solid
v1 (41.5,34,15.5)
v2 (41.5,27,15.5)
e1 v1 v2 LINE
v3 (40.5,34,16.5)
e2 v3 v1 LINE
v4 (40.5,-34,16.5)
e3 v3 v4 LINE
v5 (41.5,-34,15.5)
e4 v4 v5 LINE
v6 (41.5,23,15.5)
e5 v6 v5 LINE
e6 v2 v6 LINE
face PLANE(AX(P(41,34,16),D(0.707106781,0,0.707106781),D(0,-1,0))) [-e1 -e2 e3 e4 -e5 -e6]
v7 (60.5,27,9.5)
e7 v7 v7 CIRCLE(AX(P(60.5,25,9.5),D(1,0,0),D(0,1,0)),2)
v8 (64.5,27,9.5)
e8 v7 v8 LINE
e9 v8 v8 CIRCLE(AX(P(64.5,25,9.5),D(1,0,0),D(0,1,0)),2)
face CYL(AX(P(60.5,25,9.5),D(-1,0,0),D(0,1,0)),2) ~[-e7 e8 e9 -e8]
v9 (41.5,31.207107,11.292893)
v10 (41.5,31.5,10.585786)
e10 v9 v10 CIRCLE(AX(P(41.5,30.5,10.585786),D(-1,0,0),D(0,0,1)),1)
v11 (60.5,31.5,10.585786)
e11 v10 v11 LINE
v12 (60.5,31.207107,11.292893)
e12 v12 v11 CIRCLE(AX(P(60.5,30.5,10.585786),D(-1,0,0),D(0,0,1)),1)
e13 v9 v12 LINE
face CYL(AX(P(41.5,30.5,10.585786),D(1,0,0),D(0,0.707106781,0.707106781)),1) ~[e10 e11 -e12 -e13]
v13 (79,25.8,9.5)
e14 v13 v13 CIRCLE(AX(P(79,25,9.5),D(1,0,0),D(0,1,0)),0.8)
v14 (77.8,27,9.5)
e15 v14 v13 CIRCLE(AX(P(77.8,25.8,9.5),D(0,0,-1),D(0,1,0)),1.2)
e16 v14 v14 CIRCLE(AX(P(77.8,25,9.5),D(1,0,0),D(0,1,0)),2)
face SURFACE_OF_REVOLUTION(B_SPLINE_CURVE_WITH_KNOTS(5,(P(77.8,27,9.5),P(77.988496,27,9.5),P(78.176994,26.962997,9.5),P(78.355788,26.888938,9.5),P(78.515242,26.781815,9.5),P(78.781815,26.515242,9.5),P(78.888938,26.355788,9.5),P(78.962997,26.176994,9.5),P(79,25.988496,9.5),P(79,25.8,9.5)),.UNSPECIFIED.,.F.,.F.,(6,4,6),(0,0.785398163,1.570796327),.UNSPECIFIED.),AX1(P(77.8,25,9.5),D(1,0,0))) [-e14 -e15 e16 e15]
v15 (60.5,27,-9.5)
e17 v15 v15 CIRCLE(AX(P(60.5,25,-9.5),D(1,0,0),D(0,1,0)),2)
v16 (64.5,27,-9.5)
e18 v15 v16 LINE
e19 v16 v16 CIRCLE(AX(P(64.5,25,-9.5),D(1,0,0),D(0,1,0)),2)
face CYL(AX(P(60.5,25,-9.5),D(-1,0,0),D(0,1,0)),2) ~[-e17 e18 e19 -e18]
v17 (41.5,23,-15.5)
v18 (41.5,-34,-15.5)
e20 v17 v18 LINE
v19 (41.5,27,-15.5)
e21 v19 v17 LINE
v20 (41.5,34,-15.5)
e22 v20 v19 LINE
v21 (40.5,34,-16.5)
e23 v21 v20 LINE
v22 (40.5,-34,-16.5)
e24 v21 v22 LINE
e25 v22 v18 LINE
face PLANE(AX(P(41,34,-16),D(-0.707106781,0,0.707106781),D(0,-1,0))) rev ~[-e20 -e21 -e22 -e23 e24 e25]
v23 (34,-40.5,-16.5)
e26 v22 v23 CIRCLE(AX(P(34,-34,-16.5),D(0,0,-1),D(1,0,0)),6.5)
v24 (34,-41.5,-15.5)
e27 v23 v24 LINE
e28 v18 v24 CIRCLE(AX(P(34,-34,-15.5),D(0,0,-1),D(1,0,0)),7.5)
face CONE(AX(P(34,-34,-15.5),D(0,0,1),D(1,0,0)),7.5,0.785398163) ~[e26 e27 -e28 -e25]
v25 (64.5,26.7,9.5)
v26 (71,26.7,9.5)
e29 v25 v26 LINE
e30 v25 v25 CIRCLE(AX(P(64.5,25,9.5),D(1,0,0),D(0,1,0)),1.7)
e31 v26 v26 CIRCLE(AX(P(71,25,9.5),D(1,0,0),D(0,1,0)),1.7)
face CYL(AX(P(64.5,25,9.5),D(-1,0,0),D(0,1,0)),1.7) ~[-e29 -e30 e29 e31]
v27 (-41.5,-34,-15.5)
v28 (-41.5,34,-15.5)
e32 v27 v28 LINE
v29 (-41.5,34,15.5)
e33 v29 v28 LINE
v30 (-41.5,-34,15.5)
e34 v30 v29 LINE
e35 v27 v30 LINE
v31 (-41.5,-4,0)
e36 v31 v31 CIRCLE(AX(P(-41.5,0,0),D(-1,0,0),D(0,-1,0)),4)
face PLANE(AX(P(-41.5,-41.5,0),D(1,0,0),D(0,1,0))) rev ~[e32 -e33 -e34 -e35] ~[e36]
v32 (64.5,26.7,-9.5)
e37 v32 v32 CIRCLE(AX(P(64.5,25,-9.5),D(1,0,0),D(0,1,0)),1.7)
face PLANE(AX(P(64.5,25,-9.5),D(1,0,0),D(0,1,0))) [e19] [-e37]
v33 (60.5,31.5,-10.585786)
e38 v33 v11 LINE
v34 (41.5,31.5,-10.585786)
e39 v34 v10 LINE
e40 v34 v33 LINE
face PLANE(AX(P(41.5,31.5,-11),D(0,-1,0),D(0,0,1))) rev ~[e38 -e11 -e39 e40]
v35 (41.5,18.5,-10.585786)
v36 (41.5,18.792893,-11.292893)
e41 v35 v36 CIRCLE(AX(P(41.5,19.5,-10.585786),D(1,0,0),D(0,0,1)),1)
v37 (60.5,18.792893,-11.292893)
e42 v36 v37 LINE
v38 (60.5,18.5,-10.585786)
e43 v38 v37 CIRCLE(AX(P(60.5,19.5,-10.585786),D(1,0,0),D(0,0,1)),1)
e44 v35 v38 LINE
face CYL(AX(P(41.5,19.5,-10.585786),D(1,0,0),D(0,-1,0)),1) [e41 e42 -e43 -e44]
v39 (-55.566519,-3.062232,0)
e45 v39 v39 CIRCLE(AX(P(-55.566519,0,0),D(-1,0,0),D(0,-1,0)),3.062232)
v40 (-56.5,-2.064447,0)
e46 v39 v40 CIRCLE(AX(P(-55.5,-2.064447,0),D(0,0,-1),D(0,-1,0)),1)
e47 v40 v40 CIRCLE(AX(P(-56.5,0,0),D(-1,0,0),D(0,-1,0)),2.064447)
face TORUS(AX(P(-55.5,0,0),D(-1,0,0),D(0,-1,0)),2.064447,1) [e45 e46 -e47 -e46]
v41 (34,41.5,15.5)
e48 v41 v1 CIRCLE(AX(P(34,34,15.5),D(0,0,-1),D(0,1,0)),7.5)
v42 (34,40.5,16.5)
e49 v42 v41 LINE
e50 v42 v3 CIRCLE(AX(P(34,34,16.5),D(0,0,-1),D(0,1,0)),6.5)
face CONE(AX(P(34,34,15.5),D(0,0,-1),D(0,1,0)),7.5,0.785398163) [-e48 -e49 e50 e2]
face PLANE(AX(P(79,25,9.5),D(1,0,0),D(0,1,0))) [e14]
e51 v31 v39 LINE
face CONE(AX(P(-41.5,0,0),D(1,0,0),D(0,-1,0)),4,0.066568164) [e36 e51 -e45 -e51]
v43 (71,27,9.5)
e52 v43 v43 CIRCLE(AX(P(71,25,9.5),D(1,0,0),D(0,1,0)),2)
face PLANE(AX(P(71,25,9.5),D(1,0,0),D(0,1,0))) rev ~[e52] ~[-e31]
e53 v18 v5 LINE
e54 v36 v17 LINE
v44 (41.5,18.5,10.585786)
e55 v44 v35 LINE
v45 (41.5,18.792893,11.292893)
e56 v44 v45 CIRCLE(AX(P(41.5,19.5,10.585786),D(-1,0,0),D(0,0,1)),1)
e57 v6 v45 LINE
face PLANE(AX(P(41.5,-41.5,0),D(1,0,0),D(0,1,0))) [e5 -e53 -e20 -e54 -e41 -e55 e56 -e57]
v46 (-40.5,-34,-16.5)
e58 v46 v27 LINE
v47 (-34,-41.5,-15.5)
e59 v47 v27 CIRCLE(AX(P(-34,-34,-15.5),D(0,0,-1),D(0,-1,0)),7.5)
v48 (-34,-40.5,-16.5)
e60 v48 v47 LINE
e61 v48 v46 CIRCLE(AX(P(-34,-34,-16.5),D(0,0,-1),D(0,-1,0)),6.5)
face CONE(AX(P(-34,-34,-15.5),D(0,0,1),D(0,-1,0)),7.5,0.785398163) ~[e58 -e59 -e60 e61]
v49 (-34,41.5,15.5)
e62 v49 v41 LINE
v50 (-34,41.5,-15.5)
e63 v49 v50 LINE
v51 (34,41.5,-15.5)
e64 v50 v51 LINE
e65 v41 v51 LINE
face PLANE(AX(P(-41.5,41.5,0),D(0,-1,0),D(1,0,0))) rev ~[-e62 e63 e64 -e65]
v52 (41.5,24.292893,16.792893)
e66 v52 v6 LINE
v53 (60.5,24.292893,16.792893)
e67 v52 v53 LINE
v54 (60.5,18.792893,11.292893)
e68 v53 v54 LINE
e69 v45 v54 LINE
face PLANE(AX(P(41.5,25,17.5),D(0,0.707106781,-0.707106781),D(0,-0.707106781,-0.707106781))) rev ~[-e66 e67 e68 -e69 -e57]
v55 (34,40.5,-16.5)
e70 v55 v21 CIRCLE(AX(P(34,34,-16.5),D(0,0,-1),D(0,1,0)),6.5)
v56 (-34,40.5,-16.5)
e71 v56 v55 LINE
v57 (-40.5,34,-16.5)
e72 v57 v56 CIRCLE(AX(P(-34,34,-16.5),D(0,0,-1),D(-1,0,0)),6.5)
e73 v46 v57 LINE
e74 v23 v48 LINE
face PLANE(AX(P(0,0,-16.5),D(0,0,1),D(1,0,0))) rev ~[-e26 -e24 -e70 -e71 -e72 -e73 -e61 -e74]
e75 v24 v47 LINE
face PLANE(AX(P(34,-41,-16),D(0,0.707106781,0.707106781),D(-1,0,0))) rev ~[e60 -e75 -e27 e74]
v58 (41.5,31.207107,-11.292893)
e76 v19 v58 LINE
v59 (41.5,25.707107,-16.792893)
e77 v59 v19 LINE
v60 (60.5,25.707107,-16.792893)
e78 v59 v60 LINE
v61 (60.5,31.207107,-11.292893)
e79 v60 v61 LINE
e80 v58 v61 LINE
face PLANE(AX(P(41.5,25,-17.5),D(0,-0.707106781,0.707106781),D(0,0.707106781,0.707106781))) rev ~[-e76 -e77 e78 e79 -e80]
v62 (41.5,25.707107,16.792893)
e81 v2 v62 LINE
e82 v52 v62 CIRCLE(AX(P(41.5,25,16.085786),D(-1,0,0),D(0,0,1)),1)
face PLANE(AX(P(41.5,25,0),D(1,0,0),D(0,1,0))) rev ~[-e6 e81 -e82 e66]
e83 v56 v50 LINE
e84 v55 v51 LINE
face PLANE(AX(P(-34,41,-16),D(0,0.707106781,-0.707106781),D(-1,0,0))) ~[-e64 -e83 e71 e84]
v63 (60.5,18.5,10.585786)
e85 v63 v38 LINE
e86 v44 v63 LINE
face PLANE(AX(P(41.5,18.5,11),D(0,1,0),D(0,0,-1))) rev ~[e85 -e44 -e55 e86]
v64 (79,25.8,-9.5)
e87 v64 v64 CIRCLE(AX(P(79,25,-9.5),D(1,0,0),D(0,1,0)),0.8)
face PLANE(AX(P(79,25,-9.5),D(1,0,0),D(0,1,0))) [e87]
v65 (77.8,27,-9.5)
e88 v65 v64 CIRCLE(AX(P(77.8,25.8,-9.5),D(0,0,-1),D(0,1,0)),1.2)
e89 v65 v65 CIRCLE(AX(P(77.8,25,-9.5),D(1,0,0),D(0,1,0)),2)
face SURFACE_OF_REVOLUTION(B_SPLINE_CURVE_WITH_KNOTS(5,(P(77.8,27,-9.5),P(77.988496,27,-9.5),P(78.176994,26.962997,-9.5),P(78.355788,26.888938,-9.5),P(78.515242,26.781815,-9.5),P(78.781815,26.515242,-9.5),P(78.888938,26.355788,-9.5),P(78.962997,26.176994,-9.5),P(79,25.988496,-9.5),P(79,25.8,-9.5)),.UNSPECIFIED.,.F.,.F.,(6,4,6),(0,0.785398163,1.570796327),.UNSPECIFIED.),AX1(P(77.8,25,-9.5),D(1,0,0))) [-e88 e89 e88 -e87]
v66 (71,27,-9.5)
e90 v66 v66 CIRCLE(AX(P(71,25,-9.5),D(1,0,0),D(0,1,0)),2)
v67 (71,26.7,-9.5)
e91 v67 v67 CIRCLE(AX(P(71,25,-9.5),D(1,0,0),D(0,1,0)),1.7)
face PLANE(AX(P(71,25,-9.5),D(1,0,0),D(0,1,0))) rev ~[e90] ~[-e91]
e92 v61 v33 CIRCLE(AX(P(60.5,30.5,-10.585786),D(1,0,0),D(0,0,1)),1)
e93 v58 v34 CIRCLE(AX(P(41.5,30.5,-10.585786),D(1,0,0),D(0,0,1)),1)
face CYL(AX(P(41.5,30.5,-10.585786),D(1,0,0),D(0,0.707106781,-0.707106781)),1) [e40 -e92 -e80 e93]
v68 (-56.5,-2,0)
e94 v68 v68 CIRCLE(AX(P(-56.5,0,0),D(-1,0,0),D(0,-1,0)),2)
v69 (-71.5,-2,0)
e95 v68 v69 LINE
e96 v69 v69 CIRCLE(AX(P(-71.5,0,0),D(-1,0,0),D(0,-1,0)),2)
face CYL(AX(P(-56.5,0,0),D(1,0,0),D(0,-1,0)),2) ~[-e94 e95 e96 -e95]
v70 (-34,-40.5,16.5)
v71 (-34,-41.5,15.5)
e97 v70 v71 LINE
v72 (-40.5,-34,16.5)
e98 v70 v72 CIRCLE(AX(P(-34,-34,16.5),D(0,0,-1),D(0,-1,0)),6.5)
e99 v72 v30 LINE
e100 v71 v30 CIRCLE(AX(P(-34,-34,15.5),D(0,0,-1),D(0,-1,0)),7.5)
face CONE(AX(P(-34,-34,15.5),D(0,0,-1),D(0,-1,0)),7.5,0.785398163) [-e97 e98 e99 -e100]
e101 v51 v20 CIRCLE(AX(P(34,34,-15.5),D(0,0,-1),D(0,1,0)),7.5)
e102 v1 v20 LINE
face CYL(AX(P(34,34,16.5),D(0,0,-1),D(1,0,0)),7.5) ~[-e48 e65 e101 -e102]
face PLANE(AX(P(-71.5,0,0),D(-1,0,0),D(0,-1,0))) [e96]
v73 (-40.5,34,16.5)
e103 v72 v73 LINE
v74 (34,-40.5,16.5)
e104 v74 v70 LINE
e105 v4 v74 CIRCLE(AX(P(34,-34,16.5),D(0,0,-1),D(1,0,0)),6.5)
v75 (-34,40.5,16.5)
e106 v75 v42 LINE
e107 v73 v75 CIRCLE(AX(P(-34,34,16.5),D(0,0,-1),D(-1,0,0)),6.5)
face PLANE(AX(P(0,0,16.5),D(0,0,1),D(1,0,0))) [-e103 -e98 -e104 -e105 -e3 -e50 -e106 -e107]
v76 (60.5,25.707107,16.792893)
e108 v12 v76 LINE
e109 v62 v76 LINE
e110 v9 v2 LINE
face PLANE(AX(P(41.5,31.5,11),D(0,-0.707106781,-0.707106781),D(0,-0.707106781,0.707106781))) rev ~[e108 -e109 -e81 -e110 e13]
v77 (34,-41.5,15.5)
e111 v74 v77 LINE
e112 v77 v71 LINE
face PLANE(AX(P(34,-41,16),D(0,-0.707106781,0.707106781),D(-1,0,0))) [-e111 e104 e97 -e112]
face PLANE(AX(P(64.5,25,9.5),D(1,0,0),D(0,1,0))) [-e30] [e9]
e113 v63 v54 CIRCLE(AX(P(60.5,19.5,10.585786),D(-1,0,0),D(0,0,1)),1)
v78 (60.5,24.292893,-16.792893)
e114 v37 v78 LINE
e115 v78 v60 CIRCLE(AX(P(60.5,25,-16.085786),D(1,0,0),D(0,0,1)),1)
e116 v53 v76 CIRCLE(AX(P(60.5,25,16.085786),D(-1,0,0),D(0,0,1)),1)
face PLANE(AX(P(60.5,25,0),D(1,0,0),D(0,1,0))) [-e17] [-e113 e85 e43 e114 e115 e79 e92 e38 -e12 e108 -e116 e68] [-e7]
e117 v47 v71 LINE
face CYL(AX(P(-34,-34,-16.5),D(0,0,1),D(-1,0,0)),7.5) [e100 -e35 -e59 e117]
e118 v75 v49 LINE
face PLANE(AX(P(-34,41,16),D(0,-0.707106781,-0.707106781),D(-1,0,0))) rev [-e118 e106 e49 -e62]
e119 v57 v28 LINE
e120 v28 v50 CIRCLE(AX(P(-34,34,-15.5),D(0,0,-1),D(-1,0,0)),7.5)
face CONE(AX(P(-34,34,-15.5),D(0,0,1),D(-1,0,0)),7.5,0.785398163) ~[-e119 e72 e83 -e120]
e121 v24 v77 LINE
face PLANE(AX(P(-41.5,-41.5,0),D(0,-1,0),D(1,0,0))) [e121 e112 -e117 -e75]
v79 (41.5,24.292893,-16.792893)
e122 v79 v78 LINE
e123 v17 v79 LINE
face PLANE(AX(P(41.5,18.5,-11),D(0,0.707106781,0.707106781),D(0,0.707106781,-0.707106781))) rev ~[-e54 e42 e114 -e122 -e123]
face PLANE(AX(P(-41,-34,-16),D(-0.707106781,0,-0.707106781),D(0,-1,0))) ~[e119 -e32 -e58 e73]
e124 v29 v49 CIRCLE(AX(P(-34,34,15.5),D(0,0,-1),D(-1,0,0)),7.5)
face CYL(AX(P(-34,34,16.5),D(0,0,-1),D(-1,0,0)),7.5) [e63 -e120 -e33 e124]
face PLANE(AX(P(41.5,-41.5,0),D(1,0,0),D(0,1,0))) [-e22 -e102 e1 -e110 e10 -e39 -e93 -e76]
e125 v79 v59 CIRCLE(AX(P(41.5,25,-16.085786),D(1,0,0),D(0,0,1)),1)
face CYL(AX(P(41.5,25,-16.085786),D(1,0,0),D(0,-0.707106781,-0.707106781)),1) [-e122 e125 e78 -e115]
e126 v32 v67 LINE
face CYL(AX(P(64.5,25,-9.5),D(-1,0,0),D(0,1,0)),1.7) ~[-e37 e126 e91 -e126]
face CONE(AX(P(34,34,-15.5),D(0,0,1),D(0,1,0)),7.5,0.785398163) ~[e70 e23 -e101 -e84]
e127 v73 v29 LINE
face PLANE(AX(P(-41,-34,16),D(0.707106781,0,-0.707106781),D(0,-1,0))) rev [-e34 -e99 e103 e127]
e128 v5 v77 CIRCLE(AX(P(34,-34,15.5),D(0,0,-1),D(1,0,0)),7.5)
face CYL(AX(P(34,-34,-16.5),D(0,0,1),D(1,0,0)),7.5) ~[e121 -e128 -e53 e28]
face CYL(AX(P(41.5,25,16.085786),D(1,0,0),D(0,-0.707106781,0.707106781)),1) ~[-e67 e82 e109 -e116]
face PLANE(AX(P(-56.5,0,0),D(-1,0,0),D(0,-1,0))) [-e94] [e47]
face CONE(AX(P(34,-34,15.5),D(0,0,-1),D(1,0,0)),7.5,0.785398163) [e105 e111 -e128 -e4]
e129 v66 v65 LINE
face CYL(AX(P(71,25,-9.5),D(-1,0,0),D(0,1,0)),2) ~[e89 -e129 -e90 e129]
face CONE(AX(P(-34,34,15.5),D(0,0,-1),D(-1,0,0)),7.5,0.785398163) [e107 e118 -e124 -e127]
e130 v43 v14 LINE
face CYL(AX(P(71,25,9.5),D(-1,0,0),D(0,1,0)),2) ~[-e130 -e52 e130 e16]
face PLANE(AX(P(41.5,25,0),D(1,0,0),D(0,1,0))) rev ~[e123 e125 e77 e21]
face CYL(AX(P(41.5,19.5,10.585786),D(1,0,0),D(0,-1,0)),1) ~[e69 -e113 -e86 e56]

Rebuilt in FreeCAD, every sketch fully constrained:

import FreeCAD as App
import Part
import Sketcher
from FreeCAD import Vector


def edges_at(feature, points):
    """Names of the edges that pass closest to the given points."""
    edges = feature.Shape.Edges
    near = lambda p: min(range(len(edges)), key=lambda i: edges[i].distToShape(Part.Vertex(*p))[0])
    return sorted({f"Edge{near(p) + 1}" for p in points})

doc = App.newDocument("Part")
body = doc.addObject("PartDesign::Body", "Body")

sketch1 = doc.addObject("Sketcher::SketchObject", "Sketch")
body.addObject(sketch1)
sketch1.AttachmentSupport = (doc.XY_Plane, [""])
sketch1.MapMode = "FlatFace"
sketch1.addGeometry([
    Part.LineSegment(Vector(-42, 42, 0), Vector(-42, -42, 0)),
    Part.LineSegment(Vector(-42, -42, 0), Vector(42, -42, 0)),
    Part.LineSegment(Vector(42, -42, 0), Vector(42, 42, 0)),
    Part.LineSegment(Vector(42, 42, 0), Vector(-42, 42, 0)),
], False)
sketch1.addConstraint([
    Sketcher.Constraint("Coincident", 0, 2, 1, 1),
    Sketcher.Constraint("Coincident", 1, 2, 2, 1),
    Sketcher.Constraint("Coincident", 2, 2, 3, 1),
    Sketcher.Constraint("Coincident", 3, 2, 0, 1),
    Sketcher.Constraint("Vertical", 0),
    Sketcher.Constraint("Horizontal", 1),
    Sketcher.Constraint("Vertical", 2),
    Sketcher.Constraint("Horizontal", 3),
    Sketcher.Constraint("Symmetric", 0, 2, 2, 2, -1, 1),
    Sketcher.Constraint("Equal", 3, 0),
    Sketcher.Constraint("DistanceX", 1, 1, 1, 2, 83.0),
])
pad1 = doc.addObject("PartDesign::Pad", "Pad")
body.addObject(pad1)
pad1.Profile = sketch1
pad1.Length = 33
pad1.Midplane = True
doc.recompute()

fillet = doc.addObject("PartDesign::Fillet", "Fillet")
body.addObject(fillet)
fillet.Base = (pad1, edges_at(pad1, [
    (41.5, -41.5, 0),
    (-41.5, -41.5, 0),
    (41.5, 41.5, 0),
    (-41.5, 41.5, 0),
]))
fillet.Radius = 7.5
doc.recompute()

chamfer = doc.addObject("PartDesign::Chamfer", "Chamfer")
body.addObject(chamfer)
chamfer.Base = (fillet, edges_at(fillet, [
    (0, 41.5, 16.5),
    (-39.303, 39.303, 16.5),
    (-41.5, 0, 16.5),
    (41.5, 0, 16.5),
    (39.303, 39.303, 16.5),
    (-39.303, -39.303, 16.5),
    (0, -41.5, 16.5),
    (39.303, -39.303, 16.5),
    (39.303, -39.303, -16.5),
    (0, -41.5, -16.5),
    (-39.303, -39.303, -16.5),
    (-41.5, 0, -16.5),
    (41.5, 0, -16.5),
    (39.303, 39.303, -16.5),
    (0, 41.5, -16.5),
    (-39.303, 39.303, -16.5),
]))
chamfer.Size = 1

sketch2 = doc.addObject("Sketcher::SketchObject", "Sketch001")
body.addObject(sketch2)
sketch2.AttachmentSupport = (doc.YZ_Plane, [""])
sketch2.MapMode = "FlatFace"
sketch2.AttachmentOffset = App.Placement(Vector(0, 0, 41.5), App.Rotation())
sketch2.addGeometry([
    Part.LineSegment(Vector(18, 11, 0), Vector(18, -11, 0)),
    Part.LineSegment(Vector(18, -11, 0), Vector(25, -18, 0)),
    Part.LineSegment(Vector(25, -18, 0), Vector(32, -11, 0)),
    Part.LineSegment(Vector(32, -11, 0), Vector(32, 11, 0)),
    Part.LineSegment(Vector(32, 11, 0), Vector(25, 18, 0)),
    Part.LineSegment(Vector(25, 18, 0), Vector(18, 11, 0)),
], False)
sketch2.addConstraint([
    Sketcher.Constraint("Coincident", 0, 2, 1, 1),
    Sketcher.Constraint("Coincident", 1, 2, 2, 1),
    Sketcher.Constraint("Coincident", 2, 2, 3, 1),
    Sketcher.Constraint("Coincident", 3, 2, 4, 1),
    Sketcher.Constraint("Coincident", 4, 2, 5, 1),
    Sketcher.Constraint("Coincident", 5, 2, 0, 1),
    Sketcher.Constraint("Vertical", 0),
    Sketcher.Constraint("Vertical", 3),
    Sketcher.Constraint("Symmetric", 1, 2, 4, 2, -1),
    Sketcher.Constraint("Perpendicular", 1, 2),
    Sketcher.Constraint("Perpendicular", 2, 4),
    Sketcher.Constraint("Perpendicular", 4, 5),
    Sketcher.Constraint("Horizontal", 0, 2, 2, 2),
    Sketcher.Constraint("Horizontal", 3, 2, 5, 2),
    Sketcher.Constraint("DistanceY", 0, 2, 0, 1, 22.0),
    Sketcher.Constraint("DistanceX", -1, 1, 1, 2, 25.0),
    Sketcher.Constraint("DistanceX", 0, 2, 2, 2, 13.0),
])
pad2 = doc.addObject("PartDesign::Pad", "Pad001")
body.addObject(pad2)
pad2.Profile = sketch2
pad2.Length = 19
doc.recompute()

fillet2 = doc.addObject("PartDesign::Fillet", "Fillet001")
body.addObject(fillet2)
fillet2.Base = (pad2, edges_at(pad2, [
    (51, 31.5, 11),
    (51, 18.5, 11),
    (51, 25, 17.5),
    (51, 18.5, -11),
    (51, 25, -17.5),
    (51, 31.5, -11),
]))
fillet2.Radius = 1

sketch3 = doc.addObject("Sketcher::SketchObject", "Sketch002")
body.addObject(sketch3)
sketch3.AttachmentSupport = (doc.YZ_Plane, [""])
sketch3.MapMode = "FlatFace"
sketch3.AttachmentOffset = App.Placement(Vector(0, 0, 60.5), App.Rotation())
sketch3.addGeometry([
    Part.Circle(Vector(25, 9.5, 0), Vector(0, 0, 1), 2),
    Part.Circle(Vector(25, -9.5, 0), Vector(0, 0, 1), 2),
], False)
sketch3.addConstraint([
    Sketcher.Constraint("Equal", 0, 1),
    Sketcher.Constraint("Symmetric", 0, 3, 1, 3, -1),
    Sketcher.Constraint("Diameter", 0, 4.0),
    Sketcher.Constraint("DistanceX", -1, 1, 0, 3, 25.0),
    Sketcher.Constraint("DistanceY", 1, 3, 0, 3, 19.0),
])
pad3 = doc.addObject("PartDesign::Pad", "Pad002")
body.addObject(pad3)
pad3.Profile = sketch3
pad3.Length = 4

sketch4 = doc.addObject("Sketcher::SketchObject", "Sketch003")
body.addObject(sketch4)
sketch4.AttachmentSupport = (doc.YZ_Plane, [""])
sketch4.MapMode = "FlatFace"
sketch4.AttachmentOffset = App.Placement(Vector(0, 0, 64.5), App.Rotation())
sketch4.addGeometry([
    Part.Circle(Vector(25, 9.5, 0), Vector(0, 0, 1), 1.7),
    Part.Circle(Vector(25, -9.5, 0), Vector(0, 0, 1), 1.7),
], False)
sketch4.addConstraint([
    Sketcher.Constraint("Equal", 0, 1),
    Sketcher.Constraint("Symmetric", 0, 3, 1, 3, -1),
    Sketcher.Constraint("Diameter", 0, 3.4),
    Sketcher.Constraint("DistanceX", -1, 1, 0, 3, 25.0),
    Sketcher.Constraint("DistanceY", 1, 3, 0, 3, 19.0),
])
pad4 = doc.addObject("PartDesign::Pad", "Pad003")
body.addObject(pad4)
pad4.Profile = sketch4
pad4.Length = 6.5

sketch5 = doc.addObject("Sketcher::SketchObject", "Sketch004")
body.addObject(sketch5)
sketch5.AttachmentSupport = (doc.YZ_Plane, [""])
sketch5.MapMode = "FlatFace"
sketch5.AttachmentOffset = App.Placement(Vector(0, 0, 71), App.Rotation())
sketch5.addGeometry([
    Part.Circle(Vector(25, 9.5, 0), Vector(0, 0, 1), 2),
    Part.Circle(Vector(25, -9.5, 0), Vector(0, 0, 1), 2),
], False)
sketch5.addConstraint([
    Sketcher.Constraint("Equal", 0, 1),
    Sketcher.Constraint("Symmetric", 0, 3, 1, 3, -1),
    Sketcher.Constraint("Diameter", 0, 4.0),
    Sketcher.Constraint("DistanceX", -1, 1, 0, 3, 25.0),
    Sketcher.Constraint("DistanceY", 1, 3, 0, 3, 19.0),
])
pad5 = doc.addObject("PartDesign::Pad", "Pad004")
body.addObject(pad5)
pad5.Profile = sketch5
pad5.Length = 8
doc.recompute()

fillet3 = doc.addObject("PartDesign::Fillet", "Fillet002")
body.addObject(fillet3)
fillet3.Base = (pad5, edges_at(pad5, [(79, 23, 9.5)]))
fillet3.Radius = 1.2
doc.recompute()

fillet4 = doc.addObject("PartDesign::Fillet", "Fillet003")
body.addObject(fillet4)
fillet4.Base = (fillet3, edges_at(fillet3, [(79, 23, -9.5)]))
fillet4.Radius = 1.2

sketch6 = doc.addObject("Sketcher::SketchObject", "Sketch005")
body.addObject(sketch6)
sketch6.AttachmentSupport = (doc.XY_Plane, [""])
sketch6.MapMode = "FlatFace"
sketch6.addGeometry([
    Part.LineSegment(Vector(-41.5, 0, 0), Vector(-41.5, -4, 0)),
    Part.LineSegment(Vector(-41.5, -4, 0), Vector(-56.5, -3, 0)),
    Part.LineSegment(Vector(-56.5, -3, 0), Vector(-56.5, 0, 0)),
    Part.LineSegment(Vector(-56.5, 0, 0), Vector(-41.5, 0, 0)),
], False)
sketch6.addConstraint([
    Sketcher.Constraint("Coincident", 0, 2, 1, 1),
    Sketcher.Constraint("Coincident", 1, 2, 2, 1),
    Sketcher.Constraint("Coincident", 2, 2, 3, 1),
    Sketcher.Constraint("Coincident", 3, 2, 0, 1),
    Sketcher.Constraint("Vertical", 0),
    Sketcher.Constraint("Vertical", 2),
    Sketcher.Constraint("Horizontal", 3),
    Sketcher.Constraint("PointOnObject", 2, 2, -1),
    Sketcher.Constraint("DistanceX", 3, 1, 3, 2, 15.0),
    Sketcher.Constraint("DistanceY", 0, 2, 0, 1, 4.0),
    Sketcher.Constraint("DistanceY", 2, 1, 2, 2, 3.0),
    Sketcher.Constraint("DistanceX", 0, 2, -1, 1, 41.5),
])
revolution = doc.addObject("PartDesign::Revolution", "Revolution")
body.addObject(revolution)
revolution.Profile = sketch6
revolution.ReferenceAxis = (sketch6, ["H_Axis"])
revolution.Angle = 360
doc.recompute()

fillet5 = doc.addObject("PartDesign::Fillet", "Fillet004")
body.addObject(fillet5)
fillet5.Base = (revolution, edges_at(revolution, [(-56.5, 3, 0)]))
fillet5.Radius = 1

sketch7 = doc.addObject("Sketcher::SketchObject", "Sketch006")
body.addObject(sketch7)
sketch7.AttachmentSupport = (doc.YZ_Plane, [""])
sketch7.MapMode = "FlatFace"
sketch7.AttachmentOffset = App.Placement(Vector(0, 0, -56.5), App.Rotation())
sketch7.addGeometry(Part.Circle(Vector(0, 0, 0), Vector(0, 0, 1), 2), False)
sketch7.addConstraint([
    Sketcher.Constraint("Coincident", 0, 3, -1, 1),
    Sketcher.Constraint("Diameter", 0, 4.0),
])
pad6 = doc.addObject("PartDesign::Pad", "Pad005")
body.addObject(pad6)
pad6.Profile = sketch7
pad6.Length = 15
pad6.Reversed = True

doc.recompute()
